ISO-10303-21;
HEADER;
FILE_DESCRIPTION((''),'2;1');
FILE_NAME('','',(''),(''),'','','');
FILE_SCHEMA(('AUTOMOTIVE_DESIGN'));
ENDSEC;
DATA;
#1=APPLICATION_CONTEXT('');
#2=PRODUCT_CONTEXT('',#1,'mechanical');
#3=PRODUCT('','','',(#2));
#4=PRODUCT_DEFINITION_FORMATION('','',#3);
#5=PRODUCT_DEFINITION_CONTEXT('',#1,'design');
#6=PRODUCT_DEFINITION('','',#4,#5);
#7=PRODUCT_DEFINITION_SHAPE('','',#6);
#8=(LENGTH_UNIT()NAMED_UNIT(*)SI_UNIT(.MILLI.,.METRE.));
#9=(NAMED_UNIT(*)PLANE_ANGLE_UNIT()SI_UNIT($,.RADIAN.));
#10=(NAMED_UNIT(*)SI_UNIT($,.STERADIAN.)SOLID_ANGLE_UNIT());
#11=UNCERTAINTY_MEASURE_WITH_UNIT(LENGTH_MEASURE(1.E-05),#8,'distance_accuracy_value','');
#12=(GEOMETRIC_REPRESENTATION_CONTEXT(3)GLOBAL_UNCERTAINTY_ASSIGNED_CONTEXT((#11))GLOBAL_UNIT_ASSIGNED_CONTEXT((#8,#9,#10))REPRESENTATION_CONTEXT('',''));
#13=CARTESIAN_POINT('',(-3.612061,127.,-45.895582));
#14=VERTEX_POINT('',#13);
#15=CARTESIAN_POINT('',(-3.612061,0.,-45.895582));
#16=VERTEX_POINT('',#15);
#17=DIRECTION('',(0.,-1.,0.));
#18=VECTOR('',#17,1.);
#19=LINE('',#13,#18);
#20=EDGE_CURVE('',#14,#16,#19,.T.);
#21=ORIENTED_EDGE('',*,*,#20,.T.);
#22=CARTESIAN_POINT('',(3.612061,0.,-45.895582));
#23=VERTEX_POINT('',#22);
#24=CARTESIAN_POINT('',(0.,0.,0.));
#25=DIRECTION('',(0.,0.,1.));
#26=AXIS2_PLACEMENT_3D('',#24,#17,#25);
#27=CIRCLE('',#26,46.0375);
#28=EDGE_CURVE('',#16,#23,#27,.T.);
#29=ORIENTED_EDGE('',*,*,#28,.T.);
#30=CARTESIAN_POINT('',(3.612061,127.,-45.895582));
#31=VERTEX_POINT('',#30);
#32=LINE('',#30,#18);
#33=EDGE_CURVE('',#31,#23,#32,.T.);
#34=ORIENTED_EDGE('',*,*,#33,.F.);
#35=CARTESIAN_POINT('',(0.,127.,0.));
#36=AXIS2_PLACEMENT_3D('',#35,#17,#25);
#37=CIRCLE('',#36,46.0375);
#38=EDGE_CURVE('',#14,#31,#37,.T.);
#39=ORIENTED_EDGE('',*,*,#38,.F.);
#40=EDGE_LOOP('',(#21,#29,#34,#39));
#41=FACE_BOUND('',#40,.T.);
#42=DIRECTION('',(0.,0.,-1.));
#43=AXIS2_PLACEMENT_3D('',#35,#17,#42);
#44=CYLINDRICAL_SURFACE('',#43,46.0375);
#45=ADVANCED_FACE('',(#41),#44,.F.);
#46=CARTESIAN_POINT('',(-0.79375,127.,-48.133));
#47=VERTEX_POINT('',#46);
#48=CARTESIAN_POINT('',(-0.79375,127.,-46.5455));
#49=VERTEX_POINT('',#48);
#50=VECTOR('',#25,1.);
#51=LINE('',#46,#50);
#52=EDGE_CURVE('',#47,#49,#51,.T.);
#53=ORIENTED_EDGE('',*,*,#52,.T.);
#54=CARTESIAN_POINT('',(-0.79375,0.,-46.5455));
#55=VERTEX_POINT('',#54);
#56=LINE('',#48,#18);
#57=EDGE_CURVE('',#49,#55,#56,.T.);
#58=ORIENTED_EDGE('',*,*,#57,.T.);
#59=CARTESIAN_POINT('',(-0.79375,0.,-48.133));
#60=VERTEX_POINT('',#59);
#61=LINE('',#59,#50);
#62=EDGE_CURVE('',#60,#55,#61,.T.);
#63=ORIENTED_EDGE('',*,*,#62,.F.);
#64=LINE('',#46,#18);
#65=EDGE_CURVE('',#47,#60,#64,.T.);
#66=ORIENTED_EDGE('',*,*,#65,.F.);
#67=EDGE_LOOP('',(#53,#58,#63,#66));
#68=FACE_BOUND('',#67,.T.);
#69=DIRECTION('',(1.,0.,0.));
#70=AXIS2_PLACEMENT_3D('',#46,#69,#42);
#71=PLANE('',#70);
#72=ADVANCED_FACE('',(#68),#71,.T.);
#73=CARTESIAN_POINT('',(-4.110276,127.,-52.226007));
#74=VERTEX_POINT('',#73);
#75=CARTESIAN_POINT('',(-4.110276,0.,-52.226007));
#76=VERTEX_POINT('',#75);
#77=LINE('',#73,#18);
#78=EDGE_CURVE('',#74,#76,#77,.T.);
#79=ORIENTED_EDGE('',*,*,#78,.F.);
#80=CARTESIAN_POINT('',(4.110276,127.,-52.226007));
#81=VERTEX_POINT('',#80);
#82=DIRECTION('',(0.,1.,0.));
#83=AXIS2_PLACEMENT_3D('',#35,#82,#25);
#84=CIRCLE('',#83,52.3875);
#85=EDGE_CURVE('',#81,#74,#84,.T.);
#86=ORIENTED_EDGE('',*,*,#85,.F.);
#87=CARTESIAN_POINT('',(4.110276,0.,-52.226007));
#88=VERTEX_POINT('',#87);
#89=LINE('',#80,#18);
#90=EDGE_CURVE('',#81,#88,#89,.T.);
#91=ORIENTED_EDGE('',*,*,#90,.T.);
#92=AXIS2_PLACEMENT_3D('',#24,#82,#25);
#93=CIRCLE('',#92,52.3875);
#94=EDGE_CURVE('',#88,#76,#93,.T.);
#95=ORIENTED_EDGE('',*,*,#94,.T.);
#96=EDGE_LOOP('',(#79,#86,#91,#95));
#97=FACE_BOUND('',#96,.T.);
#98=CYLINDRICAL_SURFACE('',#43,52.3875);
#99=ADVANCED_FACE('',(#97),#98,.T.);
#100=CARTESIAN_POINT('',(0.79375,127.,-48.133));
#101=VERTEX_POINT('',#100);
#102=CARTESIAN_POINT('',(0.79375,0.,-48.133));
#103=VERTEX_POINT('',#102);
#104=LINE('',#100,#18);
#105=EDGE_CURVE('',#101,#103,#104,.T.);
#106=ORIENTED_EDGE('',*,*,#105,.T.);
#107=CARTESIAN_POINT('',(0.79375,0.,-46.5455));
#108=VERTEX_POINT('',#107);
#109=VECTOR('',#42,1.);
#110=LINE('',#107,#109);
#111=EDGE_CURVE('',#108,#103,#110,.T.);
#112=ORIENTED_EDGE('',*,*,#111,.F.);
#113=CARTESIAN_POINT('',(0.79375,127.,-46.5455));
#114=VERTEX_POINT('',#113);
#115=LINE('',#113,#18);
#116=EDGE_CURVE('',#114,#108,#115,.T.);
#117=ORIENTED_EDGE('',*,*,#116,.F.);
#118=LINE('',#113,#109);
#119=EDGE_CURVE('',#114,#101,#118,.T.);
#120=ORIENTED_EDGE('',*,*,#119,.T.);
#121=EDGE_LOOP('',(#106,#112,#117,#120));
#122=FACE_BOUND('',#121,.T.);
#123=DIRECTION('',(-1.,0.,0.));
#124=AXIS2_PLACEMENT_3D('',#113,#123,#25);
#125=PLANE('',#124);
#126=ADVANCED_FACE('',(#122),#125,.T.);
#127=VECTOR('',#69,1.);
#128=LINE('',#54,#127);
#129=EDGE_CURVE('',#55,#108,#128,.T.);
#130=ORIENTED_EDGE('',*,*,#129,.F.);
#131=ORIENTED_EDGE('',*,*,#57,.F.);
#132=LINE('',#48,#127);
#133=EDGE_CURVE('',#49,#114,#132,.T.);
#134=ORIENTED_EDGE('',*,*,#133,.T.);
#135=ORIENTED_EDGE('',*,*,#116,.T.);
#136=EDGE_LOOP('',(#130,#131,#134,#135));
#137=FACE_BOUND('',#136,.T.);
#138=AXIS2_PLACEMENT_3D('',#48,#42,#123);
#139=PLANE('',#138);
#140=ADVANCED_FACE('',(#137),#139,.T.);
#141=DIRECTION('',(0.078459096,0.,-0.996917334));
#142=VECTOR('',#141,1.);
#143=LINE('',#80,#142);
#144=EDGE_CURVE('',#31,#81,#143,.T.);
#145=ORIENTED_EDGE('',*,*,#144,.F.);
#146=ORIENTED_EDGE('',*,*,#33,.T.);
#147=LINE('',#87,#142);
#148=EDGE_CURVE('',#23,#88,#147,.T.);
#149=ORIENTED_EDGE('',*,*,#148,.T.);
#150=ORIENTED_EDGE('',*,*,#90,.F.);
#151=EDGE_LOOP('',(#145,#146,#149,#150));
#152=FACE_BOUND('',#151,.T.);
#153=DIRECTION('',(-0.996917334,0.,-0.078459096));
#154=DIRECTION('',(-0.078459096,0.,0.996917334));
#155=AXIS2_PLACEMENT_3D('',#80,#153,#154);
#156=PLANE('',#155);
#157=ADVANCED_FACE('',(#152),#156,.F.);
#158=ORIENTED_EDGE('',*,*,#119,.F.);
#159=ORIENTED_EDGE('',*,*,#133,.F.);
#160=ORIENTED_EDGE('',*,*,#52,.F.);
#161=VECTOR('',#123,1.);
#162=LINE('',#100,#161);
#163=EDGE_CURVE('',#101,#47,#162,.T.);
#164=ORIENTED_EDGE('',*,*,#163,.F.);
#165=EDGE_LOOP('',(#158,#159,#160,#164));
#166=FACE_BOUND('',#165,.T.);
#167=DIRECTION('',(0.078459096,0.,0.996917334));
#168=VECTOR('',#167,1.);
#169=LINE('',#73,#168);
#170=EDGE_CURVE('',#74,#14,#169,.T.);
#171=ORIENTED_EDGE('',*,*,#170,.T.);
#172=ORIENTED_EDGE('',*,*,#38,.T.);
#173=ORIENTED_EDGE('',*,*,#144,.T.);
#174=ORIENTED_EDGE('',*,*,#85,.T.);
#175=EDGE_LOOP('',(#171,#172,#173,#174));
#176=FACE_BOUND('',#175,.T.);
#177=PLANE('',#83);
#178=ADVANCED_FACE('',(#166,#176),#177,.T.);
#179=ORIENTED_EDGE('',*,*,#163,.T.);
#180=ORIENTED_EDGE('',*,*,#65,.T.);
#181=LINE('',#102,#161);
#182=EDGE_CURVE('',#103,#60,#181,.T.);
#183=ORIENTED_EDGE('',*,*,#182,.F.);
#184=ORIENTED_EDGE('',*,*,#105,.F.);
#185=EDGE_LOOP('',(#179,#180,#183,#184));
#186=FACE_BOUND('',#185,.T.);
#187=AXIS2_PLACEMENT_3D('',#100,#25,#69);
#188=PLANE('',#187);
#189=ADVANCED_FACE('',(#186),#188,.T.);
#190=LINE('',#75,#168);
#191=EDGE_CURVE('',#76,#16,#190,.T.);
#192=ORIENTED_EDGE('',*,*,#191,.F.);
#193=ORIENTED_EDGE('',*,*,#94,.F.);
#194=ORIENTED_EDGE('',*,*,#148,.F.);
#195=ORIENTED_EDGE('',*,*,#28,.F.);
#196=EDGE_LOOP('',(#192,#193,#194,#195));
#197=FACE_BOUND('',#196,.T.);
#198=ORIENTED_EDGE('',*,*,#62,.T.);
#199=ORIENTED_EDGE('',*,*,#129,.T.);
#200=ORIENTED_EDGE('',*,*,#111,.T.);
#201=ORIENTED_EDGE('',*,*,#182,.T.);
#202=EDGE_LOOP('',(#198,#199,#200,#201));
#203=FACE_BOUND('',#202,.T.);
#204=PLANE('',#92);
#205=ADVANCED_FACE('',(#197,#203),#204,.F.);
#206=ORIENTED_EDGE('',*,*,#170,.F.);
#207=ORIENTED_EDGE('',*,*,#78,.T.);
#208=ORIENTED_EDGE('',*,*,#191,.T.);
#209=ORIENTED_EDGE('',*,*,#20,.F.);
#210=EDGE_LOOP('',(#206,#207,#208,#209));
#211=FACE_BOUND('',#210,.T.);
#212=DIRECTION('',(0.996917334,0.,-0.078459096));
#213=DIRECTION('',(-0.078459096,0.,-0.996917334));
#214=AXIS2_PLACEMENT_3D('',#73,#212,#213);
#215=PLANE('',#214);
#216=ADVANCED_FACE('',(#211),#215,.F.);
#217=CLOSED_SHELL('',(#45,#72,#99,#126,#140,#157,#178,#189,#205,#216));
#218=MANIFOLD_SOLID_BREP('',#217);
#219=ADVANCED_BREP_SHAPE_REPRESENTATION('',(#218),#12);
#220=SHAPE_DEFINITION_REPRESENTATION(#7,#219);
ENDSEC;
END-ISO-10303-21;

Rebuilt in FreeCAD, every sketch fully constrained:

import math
import FreeCAD as App
import Part
import Sketcher
Q = App.Units.Quantity


def add_polygon(sketch, points):
    """Adds a closed chain of lines whose ends are joined by coincident constraints."""
    first, n = sketch.GeometryCount, len(points)
    for a, b in zip(points, points[1:] + points[:1]):
        sketch.addGeometry(Part.LineSegment(App.Vector(*a, 0), App.Vector(*b, 0)), False)
    for i in range(n):
        sketch.addConstraint(Sketcher.Constraint("Coincident", first + i, 2, first + (i + 1) % n, 1))

doc = App.newDocument("Part")
params = doc.addObject("Spreadsheet::Sheet", "Params")
for row, (alias, value) in enumerate([
    ("sketch1_radius", "1.8125 in"),
    ("sketch1_radius2", "2.0625 in"),
    ("sketch1_width", "0.0625 in"),
    ("pad1_length", "5 in"),
], start=1):
    params.set(f"A{row}", alias)
    params.set(f"B{row}", "=" + value)
    params.setAlias(f"B{row}", alias)

body = doc.addObject("PartDesign::Body", "Body")

# Sketch on XZ plane
sketch1 = body.newObject("Sketcher::SketchObject", "Sketch")
sketch1.AttachmentSupport = (doc.getObject("XZ_Plane"), [""])
sketch1.MapMode = "FlatFace"
sketch1.addGeometry(Part.LineSegment(App.Vector(-4.110276, -52.226007, 0), App.Vector(-3.612061, -45.895582, 0)), False)  # 0
sketch1.addGeometry(Part.ArcOfCircle(Part.Circle(App.Vector(0, 0, 0), App.Vector(0, 0, 1), 46.0375), math.radians(-94.5), math.radians(-85.5)), False)  # 1
sketch1.addGeometry(Part.LineSegment(App.Vector(3.612061, -45.895582, 0), App.Vector(4.110276, -52.226007, 0)), False)  # 2
sketch1.addGeometry(Part.ArcOfCircle(Part.Circle(App.Vector(0, 0, 0), App.Vector(0, 0, 1), 52.3875), math.radians(-94.5), math.radians(-85.5)), False)  # 3
add_polygon(sketch1, [(0.79375, -46.5455), (-0.79375, -46.5455), (-0.79375, -48.133), (0.79375, -48.133)])  # lines 4-7
sketch1.addConstraint(Sketcher.Constraint("Coincident", 0, 2, 1, 1))
sketch1.addConstraint(Sketcher.Constraint("Coincident", 1, 2, 2, 1))
sketch1.addConstraint(Sketcher.Constraint("Coincident", 2, 2, 3, 2))
sketch1.addConstraint(Sketcher.Constraint("Coincident", 3, 1, 0, 1))
sketch1.addConstraint(Sketcher.Constraint("Horizontal", 4))
sketch1.addConstraint(Sketcher.Constraint("Vertical", 5))
sketch1.addConstraint(Sketcher.Constraint("Horizontal", 6))
sketch1.addConstraint(Sketcher.Constraint("Vertical", 7))
sketch1.addConstraint(Sketcher.Constraint("Coincident", 1, 3, -1, 1))
sketch1.addConstraint(Sketcher.Constraint("Coincident", 3, 3, -1, 1))
sketch1.addConstraint(Sketcher.Constraint("Horizontal", 0, 2, 1, 2))
sketch1.addConstraint(Sketcher.Constraint("Horizontal", 2, 2, 3, 1))
sketch1.addConstraint(Sketcher.Constraint("Equal", 6, 5))
sketch1.addConstraint(Sketcher.Constraint("Radius", 1, Q("1.8125 in")))
sketch1.addConstraint(Sketcher.Constraint("Radius", 3, Q("2.0625 in")))
sketch1.addConstraint(Sketcher.Constraint("Angle", 0, Q("85.5 deg")))
sketch1.addConstraint(Sketcher.Constraint("DistanceX", 4, 2, 4, 1, Q("0.0625 in")))
sketch1.addConstraint(Sketcher.Constraint("DistanceX", 4, 2, -1, 1, Q("0.03125 in")))
sketch1.addConstraint(Sketcher.Constraint("DistanceY", 5, 2, -1, 1, Q("1.895 in")))
sketch1.addConstraint(Sketcher.Constraint("DistanceX", 0, 2, -1, 1, 3.612061))
sketch1.setExpression("Constraints[17]", "Params.sketch1_radius")
sketch1.setExpression("Constraints[18]", "Params.sketch1_radius2")
sketch1.setExpression("Constraints[20]", "Params.sketch1_width")
pad1 = body.newObject("PartDesign::Pad", "Pad")
pad1.Profile = sketch1
pad1.setExpression("Length", "Params.pad1_length")
pad1.Reversed = True

doc.recompute()
